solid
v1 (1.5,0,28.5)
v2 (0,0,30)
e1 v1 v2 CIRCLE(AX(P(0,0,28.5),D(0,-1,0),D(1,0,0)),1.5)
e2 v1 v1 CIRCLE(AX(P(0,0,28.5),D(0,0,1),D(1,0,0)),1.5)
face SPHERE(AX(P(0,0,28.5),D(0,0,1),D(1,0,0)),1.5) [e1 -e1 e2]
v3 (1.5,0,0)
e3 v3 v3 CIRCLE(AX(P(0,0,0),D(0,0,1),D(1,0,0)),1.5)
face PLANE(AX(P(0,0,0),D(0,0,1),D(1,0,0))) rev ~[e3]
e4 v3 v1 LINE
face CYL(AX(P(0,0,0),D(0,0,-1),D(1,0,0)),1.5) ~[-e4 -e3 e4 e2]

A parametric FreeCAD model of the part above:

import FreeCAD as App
import Part
import Sketcher
from FreeCAD import Vector
Q = App.Units.Quantity


def edges_at(feature, points):
    """Names of the edges that pass closest to the given points."""
    edges = feature.Shape.Edges
    near = lambda p: min(range(len(edges)), key=lambda i: edges[i].distToShape(Part.Vertex(*p))[0])
    return sorted({f"Edge{near(p) + 1}" for p in points})

doc = App.newDocument("Part")
body = doc.addObject("PartDesign::Body", "Body")

sketch1 = body.newObject("Sketcher::SketchObject", "Sketch")
sketch1.AttachmentSupport = (doc.getObject("XY_Plane"), [""])
sketch1.MapMode = "FlatFace"
sketch1.addGeometry(Part.Circle(Vector(0, 0, 0), Vector(0, 0, 1), 1.5), False)
sketch1.addConstraint([
    Sketcher.Constraint("Coincident", 0, 3, -1, 1),
    Sketcher.Constraint("Diameter", 0, Q("3 mm")),
])
pad1 = body.newObject("PartDesign::Pad", "Pad")
pad1.Profile = sketch1
pad1.Length = 30
doc.recompute()

fillet = body.newObject("PartDesign::Fillet", "Fillet")
fillet.Base = (pad1, edges_at(pad1, [(-1.5, 0, 30)]))
fillet.Radius = 1.5

doc.recompute()
